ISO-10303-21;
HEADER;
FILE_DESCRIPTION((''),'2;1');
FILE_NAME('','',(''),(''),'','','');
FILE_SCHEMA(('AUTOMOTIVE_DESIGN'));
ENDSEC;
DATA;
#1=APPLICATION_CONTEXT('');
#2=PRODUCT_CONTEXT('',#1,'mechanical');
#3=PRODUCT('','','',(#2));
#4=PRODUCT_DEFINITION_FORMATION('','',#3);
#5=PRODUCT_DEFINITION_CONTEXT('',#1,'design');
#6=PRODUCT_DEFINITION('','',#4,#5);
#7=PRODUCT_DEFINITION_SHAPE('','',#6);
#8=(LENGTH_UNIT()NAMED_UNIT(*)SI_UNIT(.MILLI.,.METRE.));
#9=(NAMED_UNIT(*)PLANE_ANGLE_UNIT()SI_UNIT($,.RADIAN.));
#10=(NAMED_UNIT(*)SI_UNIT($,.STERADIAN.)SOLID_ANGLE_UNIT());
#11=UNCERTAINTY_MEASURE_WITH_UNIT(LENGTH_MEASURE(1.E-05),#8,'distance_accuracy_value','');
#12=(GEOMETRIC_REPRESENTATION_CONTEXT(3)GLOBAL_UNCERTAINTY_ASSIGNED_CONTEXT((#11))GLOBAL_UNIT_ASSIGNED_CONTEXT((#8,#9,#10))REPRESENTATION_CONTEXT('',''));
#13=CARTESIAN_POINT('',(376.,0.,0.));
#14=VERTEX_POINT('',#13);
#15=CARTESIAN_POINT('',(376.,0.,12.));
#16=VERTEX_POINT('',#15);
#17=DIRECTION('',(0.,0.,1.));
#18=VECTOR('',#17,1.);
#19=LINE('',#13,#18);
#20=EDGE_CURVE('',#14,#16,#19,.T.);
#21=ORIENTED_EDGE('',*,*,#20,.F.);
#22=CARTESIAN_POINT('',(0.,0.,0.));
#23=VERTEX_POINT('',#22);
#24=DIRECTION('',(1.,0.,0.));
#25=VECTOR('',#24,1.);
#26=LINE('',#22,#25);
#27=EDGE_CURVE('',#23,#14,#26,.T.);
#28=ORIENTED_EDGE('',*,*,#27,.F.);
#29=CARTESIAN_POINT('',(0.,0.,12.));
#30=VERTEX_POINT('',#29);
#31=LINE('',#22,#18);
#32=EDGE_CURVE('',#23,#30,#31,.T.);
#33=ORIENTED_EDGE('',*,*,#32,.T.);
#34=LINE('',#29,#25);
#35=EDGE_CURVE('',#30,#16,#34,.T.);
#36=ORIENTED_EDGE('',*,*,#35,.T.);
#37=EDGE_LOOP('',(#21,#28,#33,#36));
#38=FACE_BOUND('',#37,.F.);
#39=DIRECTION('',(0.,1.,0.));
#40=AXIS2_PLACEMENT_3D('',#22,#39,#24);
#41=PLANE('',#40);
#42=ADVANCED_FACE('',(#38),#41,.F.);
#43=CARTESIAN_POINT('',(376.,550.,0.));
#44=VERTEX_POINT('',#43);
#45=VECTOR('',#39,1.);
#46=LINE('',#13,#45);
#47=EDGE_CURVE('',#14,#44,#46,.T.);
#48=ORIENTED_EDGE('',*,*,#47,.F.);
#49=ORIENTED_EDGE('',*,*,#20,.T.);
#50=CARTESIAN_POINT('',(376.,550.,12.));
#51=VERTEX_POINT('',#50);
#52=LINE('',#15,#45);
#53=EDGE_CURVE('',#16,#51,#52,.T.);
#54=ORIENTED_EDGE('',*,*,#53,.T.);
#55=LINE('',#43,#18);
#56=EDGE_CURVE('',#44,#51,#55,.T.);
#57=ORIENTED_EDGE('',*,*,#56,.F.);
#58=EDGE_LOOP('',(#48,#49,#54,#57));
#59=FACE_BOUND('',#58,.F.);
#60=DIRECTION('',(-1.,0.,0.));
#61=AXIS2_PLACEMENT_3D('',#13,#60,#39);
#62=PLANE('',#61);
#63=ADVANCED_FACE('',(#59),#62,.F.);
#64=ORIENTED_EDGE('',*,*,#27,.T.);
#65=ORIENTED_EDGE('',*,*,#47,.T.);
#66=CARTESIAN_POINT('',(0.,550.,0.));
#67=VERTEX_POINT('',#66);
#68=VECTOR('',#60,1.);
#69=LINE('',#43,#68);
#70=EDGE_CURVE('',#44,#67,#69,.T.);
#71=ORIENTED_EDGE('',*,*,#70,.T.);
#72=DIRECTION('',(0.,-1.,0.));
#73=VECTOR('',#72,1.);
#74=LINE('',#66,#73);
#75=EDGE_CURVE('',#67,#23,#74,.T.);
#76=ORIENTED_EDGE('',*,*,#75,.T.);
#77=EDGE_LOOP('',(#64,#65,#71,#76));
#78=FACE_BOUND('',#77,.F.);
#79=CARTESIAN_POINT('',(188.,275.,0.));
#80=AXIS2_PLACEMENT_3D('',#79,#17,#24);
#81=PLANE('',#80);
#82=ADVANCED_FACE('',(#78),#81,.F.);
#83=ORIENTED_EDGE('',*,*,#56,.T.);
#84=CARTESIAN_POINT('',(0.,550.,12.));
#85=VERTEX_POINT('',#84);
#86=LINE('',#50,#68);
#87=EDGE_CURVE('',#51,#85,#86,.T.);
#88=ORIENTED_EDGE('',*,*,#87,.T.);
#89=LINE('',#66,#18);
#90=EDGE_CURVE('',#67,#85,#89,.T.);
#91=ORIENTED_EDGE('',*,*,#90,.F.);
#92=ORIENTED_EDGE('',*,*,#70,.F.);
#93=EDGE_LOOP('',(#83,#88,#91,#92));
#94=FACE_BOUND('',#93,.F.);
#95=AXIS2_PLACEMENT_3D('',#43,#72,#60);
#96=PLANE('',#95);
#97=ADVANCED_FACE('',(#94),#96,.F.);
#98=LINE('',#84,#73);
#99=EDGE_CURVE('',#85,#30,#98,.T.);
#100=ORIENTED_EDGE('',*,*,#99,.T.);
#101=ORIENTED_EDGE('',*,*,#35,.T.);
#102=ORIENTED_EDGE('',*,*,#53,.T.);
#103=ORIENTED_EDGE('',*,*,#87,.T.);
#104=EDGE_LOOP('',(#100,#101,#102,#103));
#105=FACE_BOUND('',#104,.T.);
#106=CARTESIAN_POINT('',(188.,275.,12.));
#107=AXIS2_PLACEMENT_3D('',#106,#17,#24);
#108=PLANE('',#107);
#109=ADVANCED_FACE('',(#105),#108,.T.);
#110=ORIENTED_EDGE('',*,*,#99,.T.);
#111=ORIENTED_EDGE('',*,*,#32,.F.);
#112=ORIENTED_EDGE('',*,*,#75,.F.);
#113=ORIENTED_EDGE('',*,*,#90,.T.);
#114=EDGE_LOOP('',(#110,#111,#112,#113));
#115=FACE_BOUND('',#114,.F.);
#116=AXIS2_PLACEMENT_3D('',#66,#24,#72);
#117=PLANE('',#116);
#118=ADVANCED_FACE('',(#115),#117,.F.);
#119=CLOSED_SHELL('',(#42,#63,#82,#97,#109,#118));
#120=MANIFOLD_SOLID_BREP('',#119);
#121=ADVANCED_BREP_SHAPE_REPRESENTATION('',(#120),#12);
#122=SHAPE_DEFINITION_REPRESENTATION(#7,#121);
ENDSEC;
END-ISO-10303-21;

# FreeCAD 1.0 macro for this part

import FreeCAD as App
import Part
import Sketcher
from FreeCAD import Vector
Q = App.Units.Quantity


def add_polygon(sketch, points):
    """Adds a closed chain of lines whose ends are joined by coincident constraints."""
    first, n = sketch.GeometryCount, len(points)
    for a, b in zip(points, points[1:] + points[:1]):
        sketch.addGeometry(Part.LineSegment(App.Vector(*a, 0), App.Vector(*b, 0)), False)
    for i in range(n):
        sketch.addConstraint(Sketcher.Constraint("Coincident", first + i, 2, first + (i + 1) % n, 1))

doc = App.newDocument("Part")
params = doc.addObject("Spreadsheet::Sheet", "Params")
for row, (alias, value) in enumerate([
    ("sketch1_width", "376 mm"),
    ("sketch1_height", "550 mm"),
    ("pad1_length", "12 mm"),
], start=1):
    params.set(f"A{row}", alias)
    params.set(f"B{row}", "=" + value)
    params.setAlias(f"B{row}", alias)

body = doc.addObject("PartDesign::Body", "Body")

# Sketch on XY plane
sketch1 = doc.addObject("Sketcher::SketchObject", "Sketch")
body.addObject(sketch1)
sketch1.AttachmentSupport = (doc.XY_Plane, [""])
sketch1.MapMode = "FlatFace"
add_polygon(sketch1, [(0, 550), (0, 0), (376, 0), (376, 550)])  # lines 0-3
sketch1.addConstraint(Sketcher.Constraint("Vertical", 0))
sketch1.addConstraint(Sketcher.Constraint("Horizontal", 1))
sketch1.addConstraint(Sketcher.Constraint("Vertical", 2))
sketch1.addConstraint(Sketcher.Constraint("Horizontal", 3))
sketch1.addConstraint(Sketcher.Constraint("Coincident", 0, 2, -1, 1))
sketch1.addConstraint(Sketcher.Constraint("DistanceX", 1, 1, 1, 2, Q("376 mm")))
sketch1.addConstraint(Sketcher.Constraint("DistanceY", 0, 2, 0, 1, Q("550 mm")))
sketch1.setExpression("Constraints[9]", "Params.sketch1_width")
sketch1.setExpression("Constraints[10]", "Params.sketch1_height")
pad1 = doc.addObject("PartDesign::Pad", "Pad")
body.addObject(pad1)
pad1.Profile = sketch1
pad1.setExpression("Length", "Params.pad1_length")

doc.recompute()
